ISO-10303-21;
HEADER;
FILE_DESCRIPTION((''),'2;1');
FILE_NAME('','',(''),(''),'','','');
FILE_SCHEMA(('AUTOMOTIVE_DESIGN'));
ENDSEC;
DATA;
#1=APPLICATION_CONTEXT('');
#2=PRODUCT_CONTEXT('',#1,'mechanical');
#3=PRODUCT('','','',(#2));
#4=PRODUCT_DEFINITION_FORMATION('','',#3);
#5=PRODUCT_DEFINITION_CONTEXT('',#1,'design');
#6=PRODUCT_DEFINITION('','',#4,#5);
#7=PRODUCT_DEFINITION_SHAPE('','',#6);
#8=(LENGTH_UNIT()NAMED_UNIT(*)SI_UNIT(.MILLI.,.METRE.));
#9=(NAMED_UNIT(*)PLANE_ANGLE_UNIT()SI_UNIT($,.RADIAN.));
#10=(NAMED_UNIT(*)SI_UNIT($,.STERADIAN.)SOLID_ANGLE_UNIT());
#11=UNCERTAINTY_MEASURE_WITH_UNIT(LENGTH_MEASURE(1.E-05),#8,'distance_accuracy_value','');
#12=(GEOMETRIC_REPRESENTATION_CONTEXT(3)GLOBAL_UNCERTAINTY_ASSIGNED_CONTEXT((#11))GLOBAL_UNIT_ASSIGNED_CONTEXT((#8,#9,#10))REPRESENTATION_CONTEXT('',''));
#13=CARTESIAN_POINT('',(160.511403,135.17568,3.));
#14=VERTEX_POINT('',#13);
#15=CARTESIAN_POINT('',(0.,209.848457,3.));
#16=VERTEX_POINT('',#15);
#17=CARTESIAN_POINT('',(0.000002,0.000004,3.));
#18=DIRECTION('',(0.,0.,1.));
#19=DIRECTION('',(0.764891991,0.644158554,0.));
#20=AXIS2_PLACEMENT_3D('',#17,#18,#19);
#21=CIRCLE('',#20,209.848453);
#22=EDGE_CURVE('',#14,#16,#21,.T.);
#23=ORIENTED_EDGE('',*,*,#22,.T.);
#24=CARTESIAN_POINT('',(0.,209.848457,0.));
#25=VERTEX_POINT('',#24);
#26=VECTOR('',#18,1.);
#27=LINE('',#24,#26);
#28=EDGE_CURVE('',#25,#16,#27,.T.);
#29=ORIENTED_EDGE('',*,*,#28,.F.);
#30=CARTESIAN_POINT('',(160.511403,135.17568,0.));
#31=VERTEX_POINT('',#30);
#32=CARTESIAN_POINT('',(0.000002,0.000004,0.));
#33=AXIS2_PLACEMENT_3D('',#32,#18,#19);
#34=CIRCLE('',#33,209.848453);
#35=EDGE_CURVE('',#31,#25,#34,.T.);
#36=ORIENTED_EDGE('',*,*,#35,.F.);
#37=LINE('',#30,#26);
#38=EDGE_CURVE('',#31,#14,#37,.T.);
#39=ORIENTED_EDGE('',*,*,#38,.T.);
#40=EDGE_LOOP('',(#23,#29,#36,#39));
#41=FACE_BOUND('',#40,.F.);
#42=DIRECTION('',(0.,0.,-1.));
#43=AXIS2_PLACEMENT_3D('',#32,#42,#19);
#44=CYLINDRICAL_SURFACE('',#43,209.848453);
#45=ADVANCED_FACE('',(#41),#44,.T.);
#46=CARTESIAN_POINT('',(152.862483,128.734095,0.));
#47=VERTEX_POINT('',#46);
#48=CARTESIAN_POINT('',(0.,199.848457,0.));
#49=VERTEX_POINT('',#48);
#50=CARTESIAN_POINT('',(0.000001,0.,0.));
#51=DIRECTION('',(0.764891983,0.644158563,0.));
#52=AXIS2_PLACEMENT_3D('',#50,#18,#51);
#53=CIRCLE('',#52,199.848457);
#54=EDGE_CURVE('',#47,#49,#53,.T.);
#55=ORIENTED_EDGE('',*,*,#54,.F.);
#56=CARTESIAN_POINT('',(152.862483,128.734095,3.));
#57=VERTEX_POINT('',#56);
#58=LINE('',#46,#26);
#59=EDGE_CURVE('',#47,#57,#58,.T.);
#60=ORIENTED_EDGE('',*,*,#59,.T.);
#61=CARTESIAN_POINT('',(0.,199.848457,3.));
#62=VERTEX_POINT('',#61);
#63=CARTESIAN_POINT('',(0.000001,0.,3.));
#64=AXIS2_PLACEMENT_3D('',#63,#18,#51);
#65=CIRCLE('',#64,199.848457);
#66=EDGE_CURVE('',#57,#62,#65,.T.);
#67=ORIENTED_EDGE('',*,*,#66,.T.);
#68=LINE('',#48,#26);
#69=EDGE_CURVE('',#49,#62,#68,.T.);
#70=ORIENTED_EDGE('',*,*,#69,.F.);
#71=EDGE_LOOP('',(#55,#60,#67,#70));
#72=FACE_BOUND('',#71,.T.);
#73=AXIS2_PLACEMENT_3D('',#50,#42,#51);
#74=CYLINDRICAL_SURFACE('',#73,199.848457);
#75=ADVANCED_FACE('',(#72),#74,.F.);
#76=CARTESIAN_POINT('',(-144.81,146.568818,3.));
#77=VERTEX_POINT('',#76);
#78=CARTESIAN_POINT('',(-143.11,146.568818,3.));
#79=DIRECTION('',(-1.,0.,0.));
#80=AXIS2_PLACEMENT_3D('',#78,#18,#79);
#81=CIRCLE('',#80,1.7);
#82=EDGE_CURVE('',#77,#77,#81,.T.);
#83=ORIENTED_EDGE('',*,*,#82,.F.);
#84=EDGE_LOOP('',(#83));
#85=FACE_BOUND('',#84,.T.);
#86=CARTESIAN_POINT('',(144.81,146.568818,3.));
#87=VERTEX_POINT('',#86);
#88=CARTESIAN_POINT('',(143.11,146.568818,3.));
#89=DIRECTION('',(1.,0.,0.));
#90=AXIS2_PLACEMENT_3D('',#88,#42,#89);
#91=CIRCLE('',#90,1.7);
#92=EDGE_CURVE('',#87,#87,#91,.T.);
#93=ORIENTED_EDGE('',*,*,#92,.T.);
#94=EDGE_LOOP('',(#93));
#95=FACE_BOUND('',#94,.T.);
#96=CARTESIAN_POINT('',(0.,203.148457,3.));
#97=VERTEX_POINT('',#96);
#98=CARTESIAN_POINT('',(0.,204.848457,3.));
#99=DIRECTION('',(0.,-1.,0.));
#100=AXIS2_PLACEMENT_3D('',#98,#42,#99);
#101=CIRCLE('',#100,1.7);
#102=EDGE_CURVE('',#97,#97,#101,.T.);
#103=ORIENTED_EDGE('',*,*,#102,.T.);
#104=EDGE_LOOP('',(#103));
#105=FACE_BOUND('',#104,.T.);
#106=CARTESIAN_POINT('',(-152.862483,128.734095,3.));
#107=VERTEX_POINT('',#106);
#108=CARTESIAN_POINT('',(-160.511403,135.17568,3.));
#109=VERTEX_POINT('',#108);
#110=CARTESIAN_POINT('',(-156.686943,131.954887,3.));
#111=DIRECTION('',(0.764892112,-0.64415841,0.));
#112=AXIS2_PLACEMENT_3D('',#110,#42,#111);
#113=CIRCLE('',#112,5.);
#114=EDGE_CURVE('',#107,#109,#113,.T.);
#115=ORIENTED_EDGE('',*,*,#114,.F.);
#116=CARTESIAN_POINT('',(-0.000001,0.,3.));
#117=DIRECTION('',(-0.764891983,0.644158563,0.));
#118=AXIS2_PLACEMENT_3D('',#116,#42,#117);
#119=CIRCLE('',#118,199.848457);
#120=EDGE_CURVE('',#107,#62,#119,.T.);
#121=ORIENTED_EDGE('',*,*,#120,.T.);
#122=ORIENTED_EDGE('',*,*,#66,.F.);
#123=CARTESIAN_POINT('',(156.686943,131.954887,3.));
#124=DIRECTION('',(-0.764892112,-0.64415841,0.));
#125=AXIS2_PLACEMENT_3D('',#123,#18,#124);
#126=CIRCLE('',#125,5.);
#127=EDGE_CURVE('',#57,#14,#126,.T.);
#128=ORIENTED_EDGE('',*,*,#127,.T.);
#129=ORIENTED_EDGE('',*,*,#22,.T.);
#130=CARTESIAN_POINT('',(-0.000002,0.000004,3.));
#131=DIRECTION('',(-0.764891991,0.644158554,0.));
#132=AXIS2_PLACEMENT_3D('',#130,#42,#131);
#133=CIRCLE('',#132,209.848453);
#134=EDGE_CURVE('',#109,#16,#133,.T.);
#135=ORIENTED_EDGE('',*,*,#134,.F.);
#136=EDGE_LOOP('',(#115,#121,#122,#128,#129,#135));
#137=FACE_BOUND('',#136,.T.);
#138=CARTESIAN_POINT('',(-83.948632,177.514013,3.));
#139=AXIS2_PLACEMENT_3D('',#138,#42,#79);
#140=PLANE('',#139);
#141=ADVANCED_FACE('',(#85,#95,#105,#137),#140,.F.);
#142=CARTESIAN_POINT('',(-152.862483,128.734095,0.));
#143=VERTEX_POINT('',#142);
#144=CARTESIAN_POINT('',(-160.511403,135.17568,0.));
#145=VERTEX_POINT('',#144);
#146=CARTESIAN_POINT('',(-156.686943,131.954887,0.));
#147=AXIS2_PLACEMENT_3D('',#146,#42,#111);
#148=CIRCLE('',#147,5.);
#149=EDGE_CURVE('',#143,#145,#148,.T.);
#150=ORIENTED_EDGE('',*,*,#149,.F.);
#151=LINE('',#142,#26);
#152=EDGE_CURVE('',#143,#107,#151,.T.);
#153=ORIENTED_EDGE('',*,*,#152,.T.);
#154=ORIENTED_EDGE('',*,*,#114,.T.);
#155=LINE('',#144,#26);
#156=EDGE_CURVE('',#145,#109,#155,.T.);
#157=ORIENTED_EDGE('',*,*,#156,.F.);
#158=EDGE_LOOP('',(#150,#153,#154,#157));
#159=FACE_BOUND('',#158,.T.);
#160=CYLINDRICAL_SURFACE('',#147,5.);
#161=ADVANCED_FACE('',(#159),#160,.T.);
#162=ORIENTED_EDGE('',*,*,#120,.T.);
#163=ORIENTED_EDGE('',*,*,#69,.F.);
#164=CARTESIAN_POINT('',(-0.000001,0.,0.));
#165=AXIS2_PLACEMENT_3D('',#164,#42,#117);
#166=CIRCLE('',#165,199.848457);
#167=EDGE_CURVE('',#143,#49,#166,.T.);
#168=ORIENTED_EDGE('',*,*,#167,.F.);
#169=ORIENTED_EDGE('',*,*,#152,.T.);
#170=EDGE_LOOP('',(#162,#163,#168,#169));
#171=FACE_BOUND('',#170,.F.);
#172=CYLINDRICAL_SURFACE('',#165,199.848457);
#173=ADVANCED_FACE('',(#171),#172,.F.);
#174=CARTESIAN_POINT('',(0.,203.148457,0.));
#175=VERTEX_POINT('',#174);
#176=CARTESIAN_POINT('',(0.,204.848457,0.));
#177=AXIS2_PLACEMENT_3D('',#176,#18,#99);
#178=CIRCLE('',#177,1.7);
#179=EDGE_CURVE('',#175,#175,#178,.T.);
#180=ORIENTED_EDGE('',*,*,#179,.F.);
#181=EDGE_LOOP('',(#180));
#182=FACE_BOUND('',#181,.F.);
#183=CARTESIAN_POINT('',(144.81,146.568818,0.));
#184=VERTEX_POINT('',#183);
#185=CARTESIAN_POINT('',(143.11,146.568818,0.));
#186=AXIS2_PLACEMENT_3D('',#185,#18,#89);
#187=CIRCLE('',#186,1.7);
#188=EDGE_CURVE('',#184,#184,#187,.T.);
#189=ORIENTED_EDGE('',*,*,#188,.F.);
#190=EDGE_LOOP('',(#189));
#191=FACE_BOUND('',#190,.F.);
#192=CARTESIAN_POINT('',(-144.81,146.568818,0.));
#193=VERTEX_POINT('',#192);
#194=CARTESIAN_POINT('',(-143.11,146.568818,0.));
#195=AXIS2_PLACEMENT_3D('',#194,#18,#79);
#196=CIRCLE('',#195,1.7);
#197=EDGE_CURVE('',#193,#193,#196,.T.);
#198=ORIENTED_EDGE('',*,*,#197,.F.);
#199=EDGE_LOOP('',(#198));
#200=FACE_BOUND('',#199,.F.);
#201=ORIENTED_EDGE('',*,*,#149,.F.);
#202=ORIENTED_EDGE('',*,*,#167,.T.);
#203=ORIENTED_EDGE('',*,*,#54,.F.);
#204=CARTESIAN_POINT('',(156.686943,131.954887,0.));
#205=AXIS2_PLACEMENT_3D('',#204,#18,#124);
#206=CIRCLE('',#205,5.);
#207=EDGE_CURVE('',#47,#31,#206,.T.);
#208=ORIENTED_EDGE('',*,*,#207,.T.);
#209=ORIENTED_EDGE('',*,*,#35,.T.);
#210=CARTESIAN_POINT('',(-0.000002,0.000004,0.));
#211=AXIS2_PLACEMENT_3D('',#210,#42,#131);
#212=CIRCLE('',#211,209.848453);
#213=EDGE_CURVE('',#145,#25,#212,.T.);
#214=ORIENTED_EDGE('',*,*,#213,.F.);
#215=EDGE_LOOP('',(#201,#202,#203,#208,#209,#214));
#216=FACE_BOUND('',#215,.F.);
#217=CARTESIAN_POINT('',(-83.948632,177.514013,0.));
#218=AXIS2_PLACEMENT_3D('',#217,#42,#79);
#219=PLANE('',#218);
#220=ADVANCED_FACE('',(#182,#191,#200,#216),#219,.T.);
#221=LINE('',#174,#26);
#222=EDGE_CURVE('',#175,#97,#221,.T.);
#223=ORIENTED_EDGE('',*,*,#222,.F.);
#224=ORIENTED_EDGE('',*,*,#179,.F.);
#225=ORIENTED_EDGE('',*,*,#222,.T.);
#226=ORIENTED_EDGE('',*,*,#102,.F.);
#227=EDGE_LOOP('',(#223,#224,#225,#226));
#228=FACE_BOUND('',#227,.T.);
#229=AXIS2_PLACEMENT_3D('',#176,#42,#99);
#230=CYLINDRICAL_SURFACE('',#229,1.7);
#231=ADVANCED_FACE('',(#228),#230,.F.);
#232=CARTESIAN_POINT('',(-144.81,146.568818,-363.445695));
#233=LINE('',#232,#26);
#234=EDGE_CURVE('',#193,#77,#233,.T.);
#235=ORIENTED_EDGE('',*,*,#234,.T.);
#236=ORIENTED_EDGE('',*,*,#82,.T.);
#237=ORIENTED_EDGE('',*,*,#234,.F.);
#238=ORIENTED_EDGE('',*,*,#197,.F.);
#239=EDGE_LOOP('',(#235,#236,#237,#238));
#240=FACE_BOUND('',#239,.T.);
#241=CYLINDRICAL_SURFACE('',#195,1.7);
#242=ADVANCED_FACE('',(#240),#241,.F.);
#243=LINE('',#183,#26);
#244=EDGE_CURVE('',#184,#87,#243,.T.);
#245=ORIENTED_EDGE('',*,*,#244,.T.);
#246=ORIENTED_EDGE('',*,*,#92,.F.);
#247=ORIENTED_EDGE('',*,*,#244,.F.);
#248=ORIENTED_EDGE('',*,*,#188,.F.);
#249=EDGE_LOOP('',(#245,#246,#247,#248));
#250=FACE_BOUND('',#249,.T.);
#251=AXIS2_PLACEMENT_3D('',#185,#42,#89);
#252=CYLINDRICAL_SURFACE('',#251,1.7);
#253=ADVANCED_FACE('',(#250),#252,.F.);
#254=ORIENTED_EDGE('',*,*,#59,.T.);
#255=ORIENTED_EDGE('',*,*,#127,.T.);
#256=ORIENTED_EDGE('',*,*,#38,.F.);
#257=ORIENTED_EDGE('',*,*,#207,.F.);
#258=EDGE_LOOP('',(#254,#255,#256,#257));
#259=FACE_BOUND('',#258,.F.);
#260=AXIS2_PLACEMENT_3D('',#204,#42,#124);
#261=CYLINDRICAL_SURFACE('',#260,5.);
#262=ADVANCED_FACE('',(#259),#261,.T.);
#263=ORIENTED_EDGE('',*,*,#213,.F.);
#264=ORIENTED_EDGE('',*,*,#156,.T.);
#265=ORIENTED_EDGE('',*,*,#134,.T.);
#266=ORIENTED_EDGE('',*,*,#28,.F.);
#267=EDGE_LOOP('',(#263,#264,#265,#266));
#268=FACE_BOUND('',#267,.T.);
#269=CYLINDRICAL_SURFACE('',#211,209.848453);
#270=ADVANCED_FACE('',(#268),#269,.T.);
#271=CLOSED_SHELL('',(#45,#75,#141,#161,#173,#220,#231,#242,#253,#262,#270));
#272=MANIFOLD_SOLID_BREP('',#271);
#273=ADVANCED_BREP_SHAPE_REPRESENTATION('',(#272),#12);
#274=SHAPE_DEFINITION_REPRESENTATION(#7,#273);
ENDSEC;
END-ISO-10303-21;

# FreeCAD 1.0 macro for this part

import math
import FreeCAD as App
import Part
import Sketcher
from FreeCAD import Vector
Q = App.Units.Quantity

doc = App.newDocument("Part")
body = doc.addObject("PartDesign::Body", "Body")

sketch1 = body.newObject("Sketcher::SketchObject", "Sketch")
sketch1.AttachmentSupport = (doc.getObject("XY_Plane"), [""])
sketch1.MapMode = "FlatFace"
sketch1.addGeometry([
    Part.ArcOfCircle(Part.Circle(Vector(0, 0, 0), Vector(0, 0, 1), 199.8), math.radians(40), math.radians(90)),
    Part.ArcOfCircle(Part.Circle(Vector(156.7, 132, 0), Vector(0, 0, 1), 5), math.radians(-140), math.radians(40)),
    Part.ArcOfCircle(Part.Circle(Vector(0, 0, 0), Vector(0, 0, 1), 209.8), math.radians(40), math.radians(90)),
    Part.LineSegment(Vector(0, 209.8, 0), Vector(0, 199.8, 0)),
], False)
sketch1.addConstraint([
    Sketcher.Constraint("Tangent", 0, 1, 1, 1),
    Sketcher.Constraint("Tangent", 1, 2, 2, 1),
    Sketcher.Constraint("Coincident", 2, 2, 3, 1),
    Sketcher.Constraint("Coincident", 3, 2, 0, 2),
    Sketcher.Constraint("Vertical", 3),
    Sketcher.Constraint("Coincident", 0, 3, -1, 1),
    Sketcher.Constraint("Coincident", 2, 3, -1, 1),
    Sketcher.Constraint("PointOnObject", 2, 2, -2),
    Sketcher.Constraint("Radius", 1, Q("5 mm")),
    Sketcher.Constraint("Radius", 0, Q("199.848457 mm")),
    Sketcher.Constraint("DistanceX", 2, 3, 1, 2, Q("160.511401 mm")),
])
pad1 = body.newObject("PartDesign::Pad", "Pad")
pad1.Profile = sketch1
pad1.Length = 3

sketch2 = body.newObject("Sketcher::SketchObject", "Sketch001")
sketch2.AttachmentSupport = (doc.getObject("XY_Plane"), [""])
sketch2.MapMode = "FlatFace"
sketch2.addGeometry([
    Part.Circle(Vector(143.1, 146.6, 0), Vector(0, 0, 1), 1.7),
    Part.LineSegment(Vector(0, 206.5, 0), Vector(0, 203.1, 0)),
    Part.ArcOfCircle(Part.Circle(Vector(0, 204.8, 0), Vector(0, 0, 1), 1.7), math.radians(-90), math.radians(90)),
], False)
sketch2.addConstraint([
    Sketcher.Constraint("Coincident", 1, 1, 2, 2),
    Sketcher.Constraint("Coincident", 2, 1, 1, 2),
    Sketcher.Constraint("Vertical", 1),
    Sketcher.Constraint("Equal", 0, 2),
    Sketcher.Constraint("PointOnObject", 2, 3, -2),
    Sketcher.Constraint("PointOnObject", 1, 1, -2),
    Sketcher.Constraint("Diameter", 0, Q("3.4 mm")),
    Sketcher.Constraint("DistanceX", -1, 1, 0, 3, Q("143.11 mm")),
    Sketcher.Constraint("DistanceY", -1, 1, 0, 3, Q("146.568818 mm")),
    Sketcher.Constraint("DistanceY", 0, 3, 2, 3, Q("58.279639 mm")),
])
pocket1 = body.newObject("PartDesign::Pocket", "Pocket")
pocket1.Profile = sketch2
pocket1.Type = "ThroughAll"
pocket1.Midplane = True
doc.recompute()

mirrored = body.newObject("PartDesign::Mirrored", "Mirrored")
mirrored.Originals = [pad1, pocket1]
mirrored.MirrorPlane = (doc.getObject("YZ_Plane"), [""])
body.Tip = mirrored

doc.recompute()
